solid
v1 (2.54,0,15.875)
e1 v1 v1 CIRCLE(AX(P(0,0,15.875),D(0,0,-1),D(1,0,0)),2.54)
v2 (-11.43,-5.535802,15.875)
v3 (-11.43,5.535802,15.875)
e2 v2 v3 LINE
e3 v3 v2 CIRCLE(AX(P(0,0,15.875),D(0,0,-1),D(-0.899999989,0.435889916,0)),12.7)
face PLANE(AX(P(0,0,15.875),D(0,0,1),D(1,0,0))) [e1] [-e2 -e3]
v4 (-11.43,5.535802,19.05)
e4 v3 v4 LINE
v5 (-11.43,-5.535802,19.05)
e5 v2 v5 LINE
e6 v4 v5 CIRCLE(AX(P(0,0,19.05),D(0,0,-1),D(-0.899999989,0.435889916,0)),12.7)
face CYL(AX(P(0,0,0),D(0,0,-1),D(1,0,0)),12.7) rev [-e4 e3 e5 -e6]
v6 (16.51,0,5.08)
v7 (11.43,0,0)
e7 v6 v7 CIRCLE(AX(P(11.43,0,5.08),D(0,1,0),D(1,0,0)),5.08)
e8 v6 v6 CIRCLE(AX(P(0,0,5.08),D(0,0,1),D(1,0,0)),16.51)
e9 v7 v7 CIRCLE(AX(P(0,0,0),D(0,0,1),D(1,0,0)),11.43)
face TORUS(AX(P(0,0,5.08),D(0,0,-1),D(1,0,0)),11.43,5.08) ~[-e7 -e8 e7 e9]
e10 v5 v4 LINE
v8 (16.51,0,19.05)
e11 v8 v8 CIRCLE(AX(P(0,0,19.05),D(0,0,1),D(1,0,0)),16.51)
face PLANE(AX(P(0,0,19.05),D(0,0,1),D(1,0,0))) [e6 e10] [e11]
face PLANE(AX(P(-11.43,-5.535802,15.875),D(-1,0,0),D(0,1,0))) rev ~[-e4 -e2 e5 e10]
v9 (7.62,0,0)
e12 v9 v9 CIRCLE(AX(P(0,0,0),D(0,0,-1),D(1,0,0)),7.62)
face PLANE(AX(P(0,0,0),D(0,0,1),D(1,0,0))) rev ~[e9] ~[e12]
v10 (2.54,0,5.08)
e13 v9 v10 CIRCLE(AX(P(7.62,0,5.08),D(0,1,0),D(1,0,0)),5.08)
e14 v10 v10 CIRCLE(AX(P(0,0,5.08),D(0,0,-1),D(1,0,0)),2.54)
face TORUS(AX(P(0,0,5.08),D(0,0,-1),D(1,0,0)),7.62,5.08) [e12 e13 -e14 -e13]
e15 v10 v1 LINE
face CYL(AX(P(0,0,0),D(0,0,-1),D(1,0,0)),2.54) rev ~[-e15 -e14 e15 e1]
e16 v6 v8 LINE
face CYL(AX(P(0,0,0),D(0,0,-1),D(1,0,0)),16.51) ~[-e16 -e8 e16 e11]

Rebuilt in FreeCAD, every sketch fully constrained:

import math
import FreeCAD as App
import Part
import Sketcher

V = App.Vector
Q = App.Units.Quantity


def edges_at(feature, points):
    """Names of the edges that pass closest to the given points."""
    edges = feature.Shape.Edges
    near = lambda p: min(range(len(edges)), key=lambda i: edges[i].distToShape(Part.Vertex(*p))[0])
    return sorted({f"Edge{near(p) + 1}" for p in points})

doc = App.newDocument("Part")
body = doc.addObject("PartDesign::Body", "Body")

# Sketch on XY plane
sketch1 = doc.addObject("Sketcher::SketchObject", "Sketch")
body.addObject(sketch1)
sketch1.AttachmentSupport = (doc.XY_Plane, [""])
sketch1.MapMode = "FlatFace"
sketch1.addGeometry(Part.Circle(V(0, 0, 0), V(0, 0, 1), 13), False)
sketch1.addConstraint(Sketcher.Constraint("Coincident", 0, 3, -1, 1))
sketch1.addConstraint(Sketcher.Constraint("Diameter", 0, Q("1 in")))
pad1 = doc.addObject("PartDesign::Pad", "Pad")
body.addObject(pad1)
pad1.Profile = sketch1
pad1.Length = Q("0.625 in")

# Sketch on XY plane
sketch2 = doc.addObject("Sketcher::SketchObject", "Sketch001")
body.addObject(sketch2)
sketch2.AttachmentSupport = (doc.XY_Plane, [""])
sketch2.MapMode = "FlatFace"
sketch2.addGeometry(Part.Circle(V(0, 0, 0), V(0, 0, 1), 17), False)
sketch2.addGeometry(Part.Circle(V(0, 0, 0), V(0, 0, 1), 13), False)
sketch2.addConstraint(Sketcher.Constraint("Coincident", 0, 3, -1, 1))
sketch2.addConstraint(Sketcher.Constraint("Coincident", 1, 3, -1, 1))
sketch2.addConstraint(Sketcher.Constraint("Diameter", 1, Q("1 in")))
sketch2.addConstraint(Sketcher.Constraint("Diameter", 0, Q("1.3 in")))
pad2 = doc.addObject("PartDesign::Pad", "Pad001")
body.addObject(pad2)
pad2.Profile = sketch2
pad2.Length = Q("0.75 in")

# Sketch on XY plane
sketch3 = doc.addObject("Sketcher::SketchObject", "Sketch002")
body.addObject(sketch3)
sketch3.AttachmentSupport = (doc.XY_Plane, [""])
sketch3.MapMode = "FlatFace"
sketch3.AttachmentOffset = App.Placement(V(0, 0, 0.625 * 25.4), App.Rotation())
sketch3.addGeometry(Part.LineSegment(V(-11, -6, 0), V(-11, 6, 0)), False)
sketch3.addGeometry(Part.ArcOfCircle(Part.Circle(V(0, 0, 0), V(0, 0, 1), 13), math.radians(154), math.radians(206)), False)
sketch3.addConstraint(Sketcher.Constraint("Coincident", 0, 1, 1, 2))
sketch3.addConstraint(Sketcher.Constraint("Coincident", 1, 1, 0, 2))
sketch3.addConstraint(Sketcher.Constraint("Vertical", 0))
sketch3.addConstraint(Sketcher.Constraint("Coincident", 1, 3, -1, 1))
sketch3.addConstraint(Sketcher.Constraint("Radius", 1, Q("0.5000001 in")))
sketch3.addConstraint(Sketcher.Constraint("DistanceX", 0, 1, -1, 1, Q("0.45 in")))
pad3 = doc.addObject("PartDesign::Pad", "Pad002")
body.addObject(pad3)
pad3.Profile = sketch3
pad3.Length = Q("0.125 in")

# Sketch on XY plane
sketch4 = doc.addObject("Sketcher::SketchObject", "Sketch003")
body.addObject(sketch4)
sketch4.AttachmentSupport = (doc.XY_Plane, [""])
sketch4.MapMode = "FlatFace"
sketch4.addGeometry(Part.Circle(V(0, 0, 0), V(0, 0, 1), 2.5), False)
sketch4.addConstraint(Sketcher.Constraint("Coincident", 0, 3, -1, 1))
sketch4.addConstraint(Sketcher.Constraint("Diameter", 0, Q("0.2 in")))
pocket1 = doc.addObject("PartDesign::Pocket", "Pocket")
body.addObject(pocket1)
pocket1.Profile = sketch4
pocket1.Type = "ThroughAll"
pocket1.Reversed = True
doc.recompute()

fillet = doc.addObject("PartDesign::Fillet", "Fillet")
body.addObject(fillet)
fillet.Base = (pocket1, edges_at(pocket1, [(-16.51, 0, 0), (-2.54, 0, 0)]))
fillet.Radius = Q("0.2 in")

doc.recompute()
